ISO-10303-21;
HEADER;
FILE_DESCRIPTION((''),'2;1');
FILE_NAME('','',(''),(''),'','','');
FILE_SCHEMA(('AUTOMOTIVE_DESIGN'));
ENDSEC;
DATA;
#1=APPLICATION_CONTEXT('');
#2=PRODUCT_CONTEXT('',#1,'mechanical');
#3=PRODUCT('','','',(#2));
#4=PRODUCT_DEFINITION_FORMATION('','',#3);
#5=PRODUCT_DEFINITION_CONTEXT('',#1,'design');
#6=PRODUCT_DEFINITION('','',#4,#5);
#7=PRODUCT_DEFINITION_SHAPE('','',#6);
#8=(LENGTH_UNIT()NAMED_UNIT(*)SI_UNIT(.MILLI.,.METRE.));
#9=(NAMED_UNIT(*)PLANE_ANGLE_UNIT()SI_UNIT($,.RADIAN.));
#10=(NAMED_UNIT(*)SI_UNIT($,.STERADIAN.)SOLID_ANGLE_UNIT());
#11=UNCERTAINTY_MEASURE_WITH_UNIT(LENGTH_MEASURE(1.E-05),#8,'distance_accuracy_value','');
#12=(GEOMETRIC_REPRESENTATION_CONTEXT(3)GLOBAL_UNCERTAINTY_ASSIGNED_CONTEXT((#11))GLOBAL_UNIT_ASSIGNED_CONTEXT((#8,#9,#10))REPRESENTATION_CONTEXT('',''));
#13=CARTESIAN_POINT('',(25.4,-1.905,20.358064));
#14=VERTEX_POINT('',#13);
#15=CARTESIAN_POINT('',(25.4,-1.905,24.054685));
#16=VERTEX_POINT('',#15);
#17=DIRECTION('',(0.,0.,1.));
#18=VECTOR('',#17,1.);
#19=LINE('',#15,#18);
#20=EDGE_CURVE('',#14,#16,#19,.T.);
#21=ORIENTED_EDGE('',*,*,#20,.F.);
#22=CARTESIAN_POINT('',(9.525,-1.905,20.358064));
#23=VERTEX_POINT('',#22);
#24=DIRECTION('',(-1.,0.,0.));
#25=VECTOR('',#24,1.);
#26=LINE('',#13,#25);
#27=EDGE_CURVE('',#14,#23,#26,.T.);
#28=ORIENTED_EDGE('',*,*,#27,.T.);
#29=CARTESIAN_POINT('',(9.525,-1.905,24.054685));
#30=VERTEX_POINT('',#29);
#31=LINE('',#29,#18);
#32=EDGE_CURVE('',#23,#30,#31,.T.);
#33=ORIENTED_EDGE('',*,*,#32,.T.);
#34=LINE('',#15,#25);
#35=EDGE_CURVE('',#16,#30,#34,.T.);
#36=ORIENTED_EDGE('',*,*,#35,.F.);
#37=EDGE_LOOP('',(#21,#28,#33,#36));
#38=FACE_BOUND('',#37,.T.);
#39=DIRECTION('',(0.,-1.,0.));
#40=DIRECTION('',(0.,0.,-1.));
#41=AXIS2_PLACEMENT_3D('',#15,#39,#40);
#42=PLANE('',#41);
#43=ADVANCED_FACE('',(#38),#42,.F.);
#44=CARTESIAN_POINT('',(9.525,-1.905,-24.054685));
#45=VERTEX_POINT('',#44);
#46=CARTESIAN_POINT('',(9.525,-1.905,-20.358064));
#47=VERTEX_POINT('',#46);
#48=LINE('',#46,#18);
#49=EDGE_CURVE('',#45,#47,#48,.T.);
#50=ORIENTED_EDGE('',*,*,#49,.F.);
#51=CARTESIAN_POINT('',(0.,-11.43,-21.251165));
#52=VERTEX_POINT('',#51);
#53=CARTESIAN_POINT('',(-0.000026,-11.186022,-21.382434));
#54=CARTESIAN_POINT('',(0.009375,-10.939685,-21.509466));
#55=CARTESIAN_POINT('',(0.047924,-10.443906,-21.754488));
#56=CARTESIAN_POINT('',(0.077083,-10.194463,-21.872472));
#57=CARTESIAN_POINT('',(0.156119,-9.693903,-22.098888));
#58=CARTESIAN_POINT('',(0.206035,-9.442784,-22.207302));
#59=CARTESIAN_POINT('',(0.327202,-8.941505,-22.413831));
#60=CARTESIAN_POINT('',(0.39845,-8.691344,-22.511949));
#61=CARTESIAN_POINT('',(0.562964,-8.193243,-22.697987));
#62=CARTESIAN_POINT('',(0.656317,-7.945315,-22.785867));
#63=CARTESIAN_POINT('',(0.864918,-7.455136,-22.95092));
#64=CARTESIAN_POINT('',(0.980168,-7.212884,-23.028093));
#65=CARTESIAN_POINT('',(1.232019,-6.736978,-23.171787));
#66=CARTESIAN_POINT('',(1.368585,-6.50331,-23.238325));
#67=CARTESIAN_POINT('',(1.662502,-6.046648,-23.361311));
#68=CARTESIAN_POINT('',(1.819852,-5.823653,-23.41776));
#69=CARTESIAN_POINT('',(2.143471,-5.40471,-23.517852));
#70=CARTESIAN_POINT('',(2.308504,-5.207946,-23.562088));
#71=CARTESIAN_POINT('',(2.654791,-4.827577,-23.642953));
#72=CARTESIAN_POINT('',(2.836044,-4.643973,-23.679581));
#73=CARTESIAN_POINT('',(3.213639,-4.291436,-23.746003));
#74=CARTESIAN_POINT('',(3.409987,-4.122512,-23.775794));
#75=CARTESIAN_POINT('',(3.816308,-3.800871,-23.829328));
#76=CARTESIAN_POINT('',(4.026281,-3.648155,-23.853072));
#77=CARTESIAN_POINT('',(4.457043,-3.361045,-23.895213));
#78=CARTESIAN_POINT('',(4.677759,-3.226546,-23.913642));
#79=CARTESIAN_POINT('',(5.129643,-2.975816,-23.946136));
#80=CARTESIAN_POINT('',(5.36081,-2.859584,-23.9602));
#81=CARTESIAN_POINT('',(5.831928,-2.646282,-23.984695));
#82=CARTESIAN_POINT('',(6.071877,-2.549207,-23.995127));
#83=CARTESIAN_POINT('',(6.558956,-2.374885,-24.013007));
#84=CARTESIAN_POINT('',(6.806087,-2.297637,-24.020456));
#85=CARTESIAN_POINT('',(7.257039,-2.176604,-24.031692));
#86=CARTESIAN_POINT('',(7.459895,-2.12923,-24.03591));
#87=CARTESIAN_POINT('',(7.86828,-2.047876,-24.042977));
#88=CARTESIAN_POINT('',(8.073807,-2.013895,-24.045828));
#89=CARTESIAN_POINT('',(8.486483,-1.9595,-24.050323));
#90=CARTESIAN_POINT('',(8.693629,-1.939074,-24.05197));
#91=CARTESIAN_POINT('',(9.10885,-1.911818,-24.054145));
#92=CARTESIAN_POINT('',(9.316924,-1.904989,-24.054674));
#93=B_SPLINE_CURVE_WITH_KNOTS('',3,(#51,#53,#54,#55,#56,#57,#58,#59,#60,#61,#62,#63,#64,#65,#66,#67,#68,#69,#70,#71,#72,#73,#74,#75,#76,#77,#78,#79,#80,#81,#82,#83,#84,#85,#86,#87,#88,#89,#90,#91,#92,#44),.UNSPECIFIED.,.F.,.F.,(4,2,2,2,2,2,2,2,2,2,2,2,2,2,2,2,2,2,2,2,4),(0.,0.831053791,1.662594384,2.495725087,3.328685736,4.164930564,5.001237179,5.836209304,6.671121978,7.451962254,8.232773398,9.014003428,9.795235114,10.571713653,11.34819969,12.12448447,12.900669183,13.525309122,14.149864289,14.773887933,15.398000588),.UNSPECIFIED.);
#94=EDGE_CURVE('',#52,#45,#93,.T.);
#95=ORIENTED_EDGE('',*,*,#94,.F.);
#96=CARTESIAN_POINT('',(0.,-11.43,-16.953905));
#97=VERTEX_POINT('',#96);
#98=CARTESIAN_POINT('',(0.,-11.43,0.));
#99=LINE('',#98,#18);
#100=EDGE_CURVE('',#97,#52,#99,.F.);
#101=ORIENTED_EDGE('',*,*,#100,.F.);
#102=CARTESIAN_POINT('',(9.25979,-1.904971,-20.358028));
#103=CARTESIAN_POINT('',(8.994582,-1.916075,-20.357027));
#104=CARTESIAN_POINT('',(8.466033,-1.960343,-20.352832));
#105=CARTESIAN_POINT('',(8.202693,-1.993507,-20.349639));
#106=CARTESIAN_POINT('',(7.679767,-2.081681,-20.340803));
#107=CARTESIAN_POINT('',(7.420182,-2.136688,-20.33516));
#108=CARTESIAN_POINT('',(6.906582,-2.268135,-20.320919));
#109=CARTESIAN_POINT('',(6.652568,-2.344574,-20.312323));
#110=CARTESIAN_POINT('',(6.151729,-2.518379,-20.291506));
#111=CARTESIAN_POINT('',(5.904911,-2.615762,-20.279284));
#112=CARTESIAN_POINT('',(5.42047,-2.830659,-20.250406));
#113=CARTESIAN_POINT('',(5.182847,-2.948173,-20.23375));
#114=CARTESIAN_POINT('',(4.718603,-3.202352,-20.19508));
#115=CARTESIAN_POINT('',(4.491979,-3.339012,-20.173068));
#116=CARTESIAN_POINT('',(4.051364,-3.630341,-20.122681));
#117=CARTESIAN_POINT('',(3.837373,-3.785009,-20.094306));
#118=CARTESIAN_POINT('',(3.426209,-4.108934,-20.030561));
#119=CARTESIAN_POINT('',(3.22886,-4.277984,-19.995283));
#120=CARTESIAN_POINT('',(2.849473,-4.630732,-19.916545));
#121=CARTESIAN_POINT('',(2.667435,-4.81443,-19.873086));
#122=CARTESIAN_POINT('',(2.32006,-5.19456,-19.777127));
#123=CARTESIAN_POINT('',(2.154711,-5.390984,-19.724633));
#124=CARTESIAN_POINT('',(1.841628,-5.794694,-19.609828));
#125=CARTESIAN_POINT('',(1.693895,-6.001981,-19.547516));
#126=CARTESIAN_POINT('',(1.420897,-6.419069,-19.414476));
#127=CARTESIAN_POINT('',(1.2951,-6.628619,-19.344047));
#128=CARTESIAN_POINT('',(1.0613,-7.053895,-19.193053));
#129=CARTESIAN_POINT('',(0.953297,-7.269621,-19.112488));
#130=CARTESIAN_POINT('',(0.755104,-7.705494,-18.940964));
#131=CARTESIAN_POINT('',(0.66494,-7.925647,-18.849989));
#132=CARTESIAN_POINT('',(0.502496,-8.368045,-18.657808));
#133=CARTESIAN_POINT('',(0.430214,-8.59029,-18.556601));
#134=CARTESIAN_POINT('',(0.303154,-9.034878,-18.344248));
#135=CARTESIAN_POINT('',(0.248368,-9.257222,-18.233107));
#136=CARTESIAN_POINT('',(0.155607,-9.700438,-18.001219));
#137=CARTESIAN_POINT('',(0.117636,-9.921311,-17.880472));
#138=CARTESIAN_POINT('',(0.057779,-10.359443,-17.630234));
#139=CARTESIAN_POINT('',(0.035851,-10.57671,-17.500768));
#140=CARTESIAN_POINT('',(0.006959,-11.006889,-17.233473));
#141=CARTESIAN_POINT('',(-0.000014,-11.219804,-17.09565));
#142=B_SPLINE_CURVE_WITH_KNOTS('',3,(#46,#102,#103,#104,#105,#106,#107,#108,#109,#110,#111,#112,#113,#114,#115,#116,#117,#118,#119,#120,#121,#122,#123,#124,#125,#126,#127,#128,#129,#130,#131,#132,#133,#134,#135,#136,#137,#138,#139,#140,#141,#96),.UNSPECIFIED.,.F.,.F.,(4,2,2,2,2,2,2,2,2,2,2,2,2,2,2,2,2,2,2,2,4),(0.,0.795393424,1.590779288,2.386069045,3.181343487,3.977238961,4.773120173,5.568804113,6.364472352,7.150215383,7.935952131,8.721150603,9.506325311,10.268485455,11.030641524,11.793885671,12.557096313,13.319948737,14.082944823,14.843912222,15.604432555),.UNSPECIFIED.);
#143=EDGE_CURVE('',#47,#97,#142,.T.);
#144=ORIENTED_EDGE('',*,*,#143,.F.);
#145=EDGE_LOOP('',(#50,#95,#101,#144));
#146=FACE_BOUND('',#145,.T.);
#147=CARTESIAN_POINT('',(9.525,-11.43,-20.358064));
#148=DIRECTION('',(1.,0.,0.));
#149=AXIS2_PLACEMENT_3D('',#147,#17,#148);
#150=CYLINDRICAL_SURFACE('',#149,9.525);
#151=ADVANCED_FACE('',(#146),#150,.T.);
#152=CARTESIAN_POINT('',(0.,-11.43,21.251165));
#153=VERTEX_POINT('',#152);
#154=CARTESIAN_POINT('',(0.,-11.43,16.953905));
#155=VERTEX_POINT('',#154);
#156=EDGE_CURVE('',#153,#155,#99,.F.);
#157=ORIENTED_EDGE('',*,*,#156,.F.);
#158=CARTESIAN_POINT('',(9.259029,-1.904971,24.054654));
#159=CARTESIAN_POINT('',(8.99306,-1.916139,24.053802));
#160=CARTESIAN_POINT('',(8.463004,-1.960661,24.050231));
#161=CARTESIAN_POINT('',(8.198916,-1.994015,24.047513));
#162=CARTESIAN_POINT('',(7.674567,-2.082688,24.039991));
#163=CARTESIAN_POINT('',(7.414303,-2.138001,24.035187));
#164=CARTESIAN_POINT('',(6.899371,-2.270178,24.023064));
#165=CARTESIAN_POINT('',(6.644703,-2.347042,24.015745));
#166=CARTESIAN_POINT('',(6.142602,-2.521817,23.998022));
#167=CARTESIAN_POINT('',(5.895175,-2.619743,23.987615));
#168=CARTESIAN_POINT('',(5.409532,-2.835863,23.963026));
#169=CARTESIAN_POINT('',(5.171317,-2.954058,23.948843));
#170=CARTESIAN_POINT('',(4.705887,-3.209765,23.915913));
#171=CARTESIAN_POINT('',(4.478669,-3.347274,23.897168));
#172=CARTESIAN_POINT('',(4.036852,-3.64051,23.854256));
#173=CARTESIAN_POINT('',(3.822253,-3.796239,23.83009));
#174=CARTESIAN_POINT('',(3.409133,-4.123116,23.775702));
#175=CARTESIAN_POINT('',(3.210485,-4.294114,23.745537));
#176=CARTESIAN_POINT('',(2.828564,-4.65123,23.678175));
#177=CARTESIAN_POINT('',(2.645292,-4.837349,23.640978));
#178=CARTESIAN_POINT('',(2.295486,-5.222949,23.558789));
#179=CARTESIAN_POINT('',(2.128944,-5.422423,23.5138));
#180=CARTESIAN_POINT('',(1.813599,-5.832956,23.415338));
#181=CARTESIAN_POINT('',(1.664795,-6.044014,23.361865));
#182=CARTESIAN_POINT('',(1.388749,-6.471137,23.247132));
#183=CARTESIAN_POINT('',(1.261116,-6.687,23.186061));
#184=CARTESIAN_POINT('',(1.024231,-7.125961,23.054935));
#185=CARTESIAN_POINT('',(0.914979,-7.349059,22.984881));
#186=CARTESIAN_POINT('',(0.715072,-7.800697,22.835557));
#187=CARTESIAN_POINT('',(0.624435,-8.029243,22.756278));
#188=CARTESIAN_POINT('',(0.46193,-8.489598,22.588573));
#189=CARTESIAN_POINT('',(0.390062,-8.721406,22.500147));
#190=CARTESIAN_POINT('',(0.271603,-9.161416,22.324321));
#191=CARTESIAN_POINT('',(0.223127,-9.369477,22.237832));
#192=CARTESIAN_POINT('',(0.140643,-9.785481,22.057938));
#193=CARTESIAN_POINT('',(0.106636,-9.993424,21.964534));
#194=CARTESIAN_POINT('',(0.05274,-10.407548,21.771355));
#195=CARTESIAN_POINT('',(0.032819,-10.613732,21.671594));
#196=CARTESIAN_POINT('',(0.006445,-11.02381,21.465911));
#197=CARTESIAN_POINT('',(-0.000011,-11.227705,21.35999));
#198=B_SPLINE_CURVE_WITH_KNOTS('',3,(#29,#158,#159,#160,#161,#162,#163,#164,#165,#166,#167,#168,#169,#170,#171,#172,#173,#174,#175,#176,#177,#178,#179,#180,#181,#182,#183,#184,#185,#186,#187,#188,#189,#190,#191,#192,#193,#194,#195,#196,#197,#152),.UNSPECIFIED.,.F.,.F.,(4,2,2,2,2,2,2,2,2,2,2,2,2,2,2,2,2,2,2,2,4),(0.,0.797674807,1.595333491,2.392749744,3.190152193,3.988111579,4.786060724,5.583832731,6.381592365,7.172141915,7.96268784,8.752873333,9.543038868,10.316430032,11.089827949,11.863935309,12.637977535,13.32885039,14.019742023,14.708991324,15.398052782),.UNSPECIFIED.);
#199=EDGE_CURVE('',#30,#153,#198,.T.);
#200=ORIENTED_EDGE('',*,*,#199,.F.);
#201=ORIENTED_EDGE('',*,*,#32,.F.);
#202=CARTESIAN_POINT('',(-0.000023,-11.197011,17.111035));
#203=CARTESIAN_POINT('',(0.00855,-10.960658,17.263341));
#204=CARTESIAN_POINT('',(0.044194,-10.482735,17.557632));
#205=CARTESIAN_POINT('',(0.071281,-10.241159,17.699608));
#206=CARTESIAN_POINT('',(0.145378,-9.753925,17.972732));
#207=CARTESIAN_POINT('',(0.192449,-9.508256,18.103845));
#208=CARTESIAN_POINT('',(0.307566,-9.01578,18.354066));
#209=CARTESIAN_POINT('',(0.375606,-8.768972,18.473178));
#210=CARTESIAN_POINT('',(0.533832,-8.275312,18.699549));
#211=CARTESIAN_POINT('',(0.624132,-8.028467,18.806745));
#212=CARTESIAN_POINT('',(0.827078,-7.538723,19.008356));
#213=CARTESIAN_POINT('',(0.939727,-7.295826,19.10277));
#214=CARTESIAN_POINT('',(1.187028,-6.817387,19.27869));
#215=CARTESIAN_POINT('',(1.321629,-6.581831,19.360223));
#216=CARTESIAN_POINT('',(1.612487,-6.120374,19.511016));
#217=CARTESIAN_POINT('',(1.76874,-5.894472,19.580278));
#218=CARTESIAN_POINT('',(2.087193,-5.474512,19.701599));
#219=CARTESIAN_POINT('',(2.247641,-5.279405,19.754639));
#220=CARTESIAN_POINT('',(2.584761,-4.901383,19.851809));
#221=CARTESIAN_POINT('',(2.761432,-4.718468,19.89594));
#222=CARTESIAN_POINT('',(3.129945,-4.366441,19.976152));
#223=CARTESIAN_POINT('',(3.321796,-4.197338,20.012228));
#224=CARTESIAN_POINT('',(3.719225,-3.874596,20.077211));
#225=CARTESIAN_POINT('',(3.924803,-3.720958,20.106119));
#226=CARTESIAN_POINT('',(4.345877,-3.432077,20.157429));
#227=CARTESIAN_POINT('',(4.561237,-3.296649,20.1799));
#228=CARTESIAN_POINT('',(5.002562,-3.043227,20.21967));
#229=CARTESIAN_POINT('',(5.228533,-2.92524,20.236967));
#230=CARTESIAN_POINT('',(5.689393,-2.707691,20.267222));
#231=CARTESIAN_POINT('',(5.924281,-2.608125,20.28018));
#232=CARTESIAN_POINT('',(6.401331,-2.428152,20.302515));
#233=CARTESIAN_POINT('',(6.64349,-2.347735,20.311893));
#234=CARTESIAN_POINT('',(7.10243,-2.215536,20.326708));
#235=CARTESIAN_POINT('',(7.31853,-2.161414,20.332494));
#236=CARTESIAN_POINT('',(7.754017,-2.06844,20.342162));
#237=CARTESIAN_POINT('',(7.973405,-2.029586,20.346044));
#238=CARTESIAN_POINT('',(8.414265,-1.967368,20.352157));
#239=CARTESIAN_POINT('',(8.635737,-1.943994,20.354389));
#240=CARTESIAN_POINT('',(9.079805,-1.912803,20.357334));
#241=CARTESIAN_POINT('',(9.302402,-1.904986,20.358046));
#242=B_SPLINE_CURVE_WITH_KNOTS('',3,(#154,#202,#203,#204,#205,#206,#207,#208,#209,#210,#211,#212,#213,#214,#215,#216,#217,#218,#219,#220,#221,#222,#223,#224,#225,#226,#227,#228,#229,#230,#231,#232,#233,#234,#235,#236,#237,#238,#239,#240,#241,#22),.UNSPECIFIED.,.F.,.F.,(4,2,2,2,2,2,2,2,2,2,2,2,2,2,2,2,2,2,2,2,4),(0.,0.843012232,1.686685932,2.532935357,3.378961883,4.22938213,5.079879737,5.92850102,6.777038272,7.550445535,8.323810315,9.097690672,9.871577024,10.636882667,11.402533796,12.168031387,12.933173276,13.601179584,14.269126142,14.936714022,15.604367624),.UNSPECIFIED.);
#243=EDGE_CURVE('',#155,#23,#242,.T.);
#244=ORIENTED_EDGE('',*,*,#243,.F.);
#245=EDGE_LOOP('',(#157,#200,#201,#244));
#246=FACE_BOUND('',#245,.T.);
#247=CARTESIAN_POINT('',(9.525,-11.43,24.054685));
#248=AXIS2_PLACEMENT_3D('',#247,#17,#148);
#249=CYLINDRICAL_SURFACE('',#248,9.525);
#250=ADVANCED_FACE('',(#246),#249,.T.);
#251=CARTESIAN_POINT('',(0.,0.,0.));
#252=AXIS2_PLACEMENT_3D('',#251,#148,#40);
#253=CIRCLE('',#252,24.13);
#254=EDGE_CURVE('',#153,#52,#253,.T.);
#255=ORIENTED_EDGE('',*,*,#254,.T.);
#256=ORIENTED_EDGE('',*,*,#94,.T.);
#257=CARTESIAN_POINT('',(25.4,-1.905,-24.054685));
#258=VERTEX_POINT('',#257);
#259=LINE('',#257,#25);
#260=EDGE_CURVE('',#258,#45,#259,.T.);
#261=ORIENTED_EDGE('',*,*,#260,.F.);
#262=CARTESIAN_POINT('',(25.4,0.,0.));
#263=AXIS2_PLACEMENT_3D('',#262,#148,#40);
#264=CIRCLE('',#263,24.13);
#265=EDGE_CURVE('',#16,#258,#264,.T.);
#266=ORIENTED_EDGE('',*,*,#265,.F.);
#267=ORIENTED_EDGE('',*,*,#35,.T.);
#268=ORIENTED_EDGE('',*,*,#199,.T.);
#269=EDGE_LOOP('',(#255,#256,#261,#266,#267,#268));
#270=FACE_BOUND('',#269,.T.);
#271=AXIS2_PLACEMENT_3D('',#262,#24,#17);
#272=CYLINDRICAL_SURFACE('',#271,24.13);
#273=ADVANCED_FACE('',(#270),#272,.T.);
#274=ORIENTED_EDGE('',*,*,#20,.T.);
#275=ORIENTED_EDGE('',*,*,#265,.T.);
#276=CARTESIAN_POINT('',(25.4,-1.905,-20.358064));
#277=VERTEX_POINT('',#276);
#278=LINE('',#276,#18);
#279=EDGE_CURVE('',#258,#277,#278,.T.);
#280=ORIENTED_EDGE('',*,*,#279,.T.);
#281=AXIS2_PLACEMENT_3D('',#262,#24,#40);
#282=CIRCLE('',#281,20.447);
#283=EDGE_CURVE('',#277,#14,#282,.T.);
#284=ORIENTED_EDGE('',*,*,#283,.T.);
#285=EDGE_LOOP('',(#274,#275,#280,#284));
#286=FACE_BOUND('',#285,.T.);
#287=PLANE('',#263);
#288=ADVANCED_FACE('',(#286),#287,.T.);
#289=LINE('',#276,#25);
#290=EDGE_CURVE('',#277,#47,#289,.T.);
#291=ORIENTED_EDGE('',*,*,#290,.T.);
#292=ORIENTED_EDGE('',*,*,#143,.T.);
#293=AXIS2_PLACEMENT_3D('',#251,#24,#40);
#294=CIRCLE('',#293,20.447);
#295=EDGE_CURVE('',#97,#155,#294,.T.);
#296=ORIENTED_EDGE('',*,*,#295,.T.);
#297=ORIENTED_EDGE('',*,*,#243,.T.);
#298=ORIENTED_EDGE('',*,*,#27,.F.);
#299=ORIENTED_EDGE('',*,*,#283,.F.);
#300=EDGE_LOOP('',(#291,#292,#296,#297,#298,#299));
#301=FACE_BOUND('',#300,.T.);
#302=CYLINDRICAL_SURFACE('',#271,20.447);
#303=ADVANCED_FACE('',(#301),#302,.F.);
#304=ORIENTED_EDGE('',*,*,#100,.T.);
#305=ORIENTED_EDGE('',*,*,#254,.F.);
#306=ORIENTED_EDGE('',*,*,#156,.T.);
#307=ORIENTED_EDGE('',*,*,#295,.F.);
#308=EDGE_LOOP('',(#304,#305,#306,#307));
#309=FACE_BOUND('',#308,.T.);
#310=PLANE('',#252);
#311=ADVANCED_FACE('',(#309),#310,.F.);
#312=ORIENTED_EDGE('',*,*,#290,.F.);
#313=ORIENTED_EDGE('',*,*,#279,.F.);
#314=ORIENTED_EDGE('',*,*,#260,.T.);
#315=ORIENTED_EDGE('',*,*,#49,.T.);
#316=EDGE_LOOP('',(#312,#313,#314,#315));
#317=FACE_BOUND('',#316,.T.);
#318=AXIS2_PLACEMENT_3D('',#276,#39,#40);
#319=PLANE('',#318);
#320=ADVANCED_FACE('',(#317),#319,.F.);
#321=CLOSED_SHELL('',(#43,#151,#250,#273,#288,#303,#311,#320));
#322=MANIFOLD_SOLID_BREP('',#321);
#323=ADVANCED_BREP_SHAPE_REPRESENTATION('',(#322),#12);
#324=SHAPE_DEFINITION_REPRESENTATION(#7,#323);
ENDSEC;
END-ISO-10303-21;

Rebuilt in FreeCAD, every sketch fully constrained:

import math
import FreeCAD as App
import Part
import Sketcher

V = App.Vector
Q = App.Units.Quantity


def edges_at(feature, points):
    """Names of the edges that pass closest to the given points."""
    edges = feature.Shape.Edges
    near = lambda p: min(range(len(edges)), key=lambda i: edges[i].distToShape(Part.Vertex(*p))[0])
    return sorted({f"Edge{near(p) + 1}" for p in points})

doc = App.newDocument("Part")
body = doc.addObject("PartDesign::Body", "Body")

sketch1 = body.newObject("Sketcher::SketchObject", "Sketch")
sketch1.AttachmentSupport = (doc.getObject("YZ_Plane"), [""])
sketch1.MapMode = "FlatFace"
sketch1.addGeometry(Part.LineSegment(V(-1.9, 20.4, 0), V(-1.9, 24.1, 0)), False)
sketch1.addGeometry(Part.ArcOfCircle(Part.Circle(V(0, 0, 0), V(0, 0, 1), 24.1), math.radians(95), math.radians(265)), False)
sketch1.addGeometry(Part.LineSegment(V(-1.9, -24.1, 0), V(-1.9, -20.4, 0)), False)
sketch1.addGeometry(Part.ArcOfCircle(Part.Circle(V(0, 0, 0), V(0, 0, 1), 20.4), math.radians(95), math.radians(265)), False)
sketch1.addConstraint(Sketcher.Constraint("Coincident", 0, 2, 1, 1))
sketch1.addConstraint(Sketcher.Constraint("Coincident", 1, 2, 2, 1))
sketch1.addConstraint(Sketcher.Constraint("Coincident", 2, 2, 3, 2))
sketch1.addConstraint(Sketcher.Constraint("Coincident", 3, 1, 0, 1))
sketch1.addConstraint(Sketcher.Constraint("Vertical", 0))
sketch1.addConstraint(Sketcher.Constraint("Vertical", 2))
sketch1.addConstraint(Sketcher.Constraint("Coincident", 1, 3, -1, 1))
sketch1.addConstraint(Sketcher.Constraint("Coincident", 3, 3, -1, 1))
sketch1.addConstraint(Sketcher.Constraint("Vertical", 0, 2, 1, 2))
sketch1.addConstraint(Sketcher.Constraint("Radius", 1, Q("0.95 in")))
sketch1.addConstraint(Sketcher.Constraint("Radius", 3, Q("0.805 in")))
sketch1.addConstraint(Sketcher.Constraint("DistanceX", 0, 2, -1, 1, Q("0.075 in")))
pad1 = body.newObject("PartDesign::Pad", "Pad")
pad1.Profile = sketch1
pad1.Length = Q("1 in")
doc.recompute()

fillet = body.newObject("PartDesign::Fillet", "Fillet")
fillet.Base = (pad1, edges_at(pad1, [(0, -1.905, 22.206), (0, -1.905, -22.206)]))
fillet.Radius = Q("0.375 in")

doc.recompute()
